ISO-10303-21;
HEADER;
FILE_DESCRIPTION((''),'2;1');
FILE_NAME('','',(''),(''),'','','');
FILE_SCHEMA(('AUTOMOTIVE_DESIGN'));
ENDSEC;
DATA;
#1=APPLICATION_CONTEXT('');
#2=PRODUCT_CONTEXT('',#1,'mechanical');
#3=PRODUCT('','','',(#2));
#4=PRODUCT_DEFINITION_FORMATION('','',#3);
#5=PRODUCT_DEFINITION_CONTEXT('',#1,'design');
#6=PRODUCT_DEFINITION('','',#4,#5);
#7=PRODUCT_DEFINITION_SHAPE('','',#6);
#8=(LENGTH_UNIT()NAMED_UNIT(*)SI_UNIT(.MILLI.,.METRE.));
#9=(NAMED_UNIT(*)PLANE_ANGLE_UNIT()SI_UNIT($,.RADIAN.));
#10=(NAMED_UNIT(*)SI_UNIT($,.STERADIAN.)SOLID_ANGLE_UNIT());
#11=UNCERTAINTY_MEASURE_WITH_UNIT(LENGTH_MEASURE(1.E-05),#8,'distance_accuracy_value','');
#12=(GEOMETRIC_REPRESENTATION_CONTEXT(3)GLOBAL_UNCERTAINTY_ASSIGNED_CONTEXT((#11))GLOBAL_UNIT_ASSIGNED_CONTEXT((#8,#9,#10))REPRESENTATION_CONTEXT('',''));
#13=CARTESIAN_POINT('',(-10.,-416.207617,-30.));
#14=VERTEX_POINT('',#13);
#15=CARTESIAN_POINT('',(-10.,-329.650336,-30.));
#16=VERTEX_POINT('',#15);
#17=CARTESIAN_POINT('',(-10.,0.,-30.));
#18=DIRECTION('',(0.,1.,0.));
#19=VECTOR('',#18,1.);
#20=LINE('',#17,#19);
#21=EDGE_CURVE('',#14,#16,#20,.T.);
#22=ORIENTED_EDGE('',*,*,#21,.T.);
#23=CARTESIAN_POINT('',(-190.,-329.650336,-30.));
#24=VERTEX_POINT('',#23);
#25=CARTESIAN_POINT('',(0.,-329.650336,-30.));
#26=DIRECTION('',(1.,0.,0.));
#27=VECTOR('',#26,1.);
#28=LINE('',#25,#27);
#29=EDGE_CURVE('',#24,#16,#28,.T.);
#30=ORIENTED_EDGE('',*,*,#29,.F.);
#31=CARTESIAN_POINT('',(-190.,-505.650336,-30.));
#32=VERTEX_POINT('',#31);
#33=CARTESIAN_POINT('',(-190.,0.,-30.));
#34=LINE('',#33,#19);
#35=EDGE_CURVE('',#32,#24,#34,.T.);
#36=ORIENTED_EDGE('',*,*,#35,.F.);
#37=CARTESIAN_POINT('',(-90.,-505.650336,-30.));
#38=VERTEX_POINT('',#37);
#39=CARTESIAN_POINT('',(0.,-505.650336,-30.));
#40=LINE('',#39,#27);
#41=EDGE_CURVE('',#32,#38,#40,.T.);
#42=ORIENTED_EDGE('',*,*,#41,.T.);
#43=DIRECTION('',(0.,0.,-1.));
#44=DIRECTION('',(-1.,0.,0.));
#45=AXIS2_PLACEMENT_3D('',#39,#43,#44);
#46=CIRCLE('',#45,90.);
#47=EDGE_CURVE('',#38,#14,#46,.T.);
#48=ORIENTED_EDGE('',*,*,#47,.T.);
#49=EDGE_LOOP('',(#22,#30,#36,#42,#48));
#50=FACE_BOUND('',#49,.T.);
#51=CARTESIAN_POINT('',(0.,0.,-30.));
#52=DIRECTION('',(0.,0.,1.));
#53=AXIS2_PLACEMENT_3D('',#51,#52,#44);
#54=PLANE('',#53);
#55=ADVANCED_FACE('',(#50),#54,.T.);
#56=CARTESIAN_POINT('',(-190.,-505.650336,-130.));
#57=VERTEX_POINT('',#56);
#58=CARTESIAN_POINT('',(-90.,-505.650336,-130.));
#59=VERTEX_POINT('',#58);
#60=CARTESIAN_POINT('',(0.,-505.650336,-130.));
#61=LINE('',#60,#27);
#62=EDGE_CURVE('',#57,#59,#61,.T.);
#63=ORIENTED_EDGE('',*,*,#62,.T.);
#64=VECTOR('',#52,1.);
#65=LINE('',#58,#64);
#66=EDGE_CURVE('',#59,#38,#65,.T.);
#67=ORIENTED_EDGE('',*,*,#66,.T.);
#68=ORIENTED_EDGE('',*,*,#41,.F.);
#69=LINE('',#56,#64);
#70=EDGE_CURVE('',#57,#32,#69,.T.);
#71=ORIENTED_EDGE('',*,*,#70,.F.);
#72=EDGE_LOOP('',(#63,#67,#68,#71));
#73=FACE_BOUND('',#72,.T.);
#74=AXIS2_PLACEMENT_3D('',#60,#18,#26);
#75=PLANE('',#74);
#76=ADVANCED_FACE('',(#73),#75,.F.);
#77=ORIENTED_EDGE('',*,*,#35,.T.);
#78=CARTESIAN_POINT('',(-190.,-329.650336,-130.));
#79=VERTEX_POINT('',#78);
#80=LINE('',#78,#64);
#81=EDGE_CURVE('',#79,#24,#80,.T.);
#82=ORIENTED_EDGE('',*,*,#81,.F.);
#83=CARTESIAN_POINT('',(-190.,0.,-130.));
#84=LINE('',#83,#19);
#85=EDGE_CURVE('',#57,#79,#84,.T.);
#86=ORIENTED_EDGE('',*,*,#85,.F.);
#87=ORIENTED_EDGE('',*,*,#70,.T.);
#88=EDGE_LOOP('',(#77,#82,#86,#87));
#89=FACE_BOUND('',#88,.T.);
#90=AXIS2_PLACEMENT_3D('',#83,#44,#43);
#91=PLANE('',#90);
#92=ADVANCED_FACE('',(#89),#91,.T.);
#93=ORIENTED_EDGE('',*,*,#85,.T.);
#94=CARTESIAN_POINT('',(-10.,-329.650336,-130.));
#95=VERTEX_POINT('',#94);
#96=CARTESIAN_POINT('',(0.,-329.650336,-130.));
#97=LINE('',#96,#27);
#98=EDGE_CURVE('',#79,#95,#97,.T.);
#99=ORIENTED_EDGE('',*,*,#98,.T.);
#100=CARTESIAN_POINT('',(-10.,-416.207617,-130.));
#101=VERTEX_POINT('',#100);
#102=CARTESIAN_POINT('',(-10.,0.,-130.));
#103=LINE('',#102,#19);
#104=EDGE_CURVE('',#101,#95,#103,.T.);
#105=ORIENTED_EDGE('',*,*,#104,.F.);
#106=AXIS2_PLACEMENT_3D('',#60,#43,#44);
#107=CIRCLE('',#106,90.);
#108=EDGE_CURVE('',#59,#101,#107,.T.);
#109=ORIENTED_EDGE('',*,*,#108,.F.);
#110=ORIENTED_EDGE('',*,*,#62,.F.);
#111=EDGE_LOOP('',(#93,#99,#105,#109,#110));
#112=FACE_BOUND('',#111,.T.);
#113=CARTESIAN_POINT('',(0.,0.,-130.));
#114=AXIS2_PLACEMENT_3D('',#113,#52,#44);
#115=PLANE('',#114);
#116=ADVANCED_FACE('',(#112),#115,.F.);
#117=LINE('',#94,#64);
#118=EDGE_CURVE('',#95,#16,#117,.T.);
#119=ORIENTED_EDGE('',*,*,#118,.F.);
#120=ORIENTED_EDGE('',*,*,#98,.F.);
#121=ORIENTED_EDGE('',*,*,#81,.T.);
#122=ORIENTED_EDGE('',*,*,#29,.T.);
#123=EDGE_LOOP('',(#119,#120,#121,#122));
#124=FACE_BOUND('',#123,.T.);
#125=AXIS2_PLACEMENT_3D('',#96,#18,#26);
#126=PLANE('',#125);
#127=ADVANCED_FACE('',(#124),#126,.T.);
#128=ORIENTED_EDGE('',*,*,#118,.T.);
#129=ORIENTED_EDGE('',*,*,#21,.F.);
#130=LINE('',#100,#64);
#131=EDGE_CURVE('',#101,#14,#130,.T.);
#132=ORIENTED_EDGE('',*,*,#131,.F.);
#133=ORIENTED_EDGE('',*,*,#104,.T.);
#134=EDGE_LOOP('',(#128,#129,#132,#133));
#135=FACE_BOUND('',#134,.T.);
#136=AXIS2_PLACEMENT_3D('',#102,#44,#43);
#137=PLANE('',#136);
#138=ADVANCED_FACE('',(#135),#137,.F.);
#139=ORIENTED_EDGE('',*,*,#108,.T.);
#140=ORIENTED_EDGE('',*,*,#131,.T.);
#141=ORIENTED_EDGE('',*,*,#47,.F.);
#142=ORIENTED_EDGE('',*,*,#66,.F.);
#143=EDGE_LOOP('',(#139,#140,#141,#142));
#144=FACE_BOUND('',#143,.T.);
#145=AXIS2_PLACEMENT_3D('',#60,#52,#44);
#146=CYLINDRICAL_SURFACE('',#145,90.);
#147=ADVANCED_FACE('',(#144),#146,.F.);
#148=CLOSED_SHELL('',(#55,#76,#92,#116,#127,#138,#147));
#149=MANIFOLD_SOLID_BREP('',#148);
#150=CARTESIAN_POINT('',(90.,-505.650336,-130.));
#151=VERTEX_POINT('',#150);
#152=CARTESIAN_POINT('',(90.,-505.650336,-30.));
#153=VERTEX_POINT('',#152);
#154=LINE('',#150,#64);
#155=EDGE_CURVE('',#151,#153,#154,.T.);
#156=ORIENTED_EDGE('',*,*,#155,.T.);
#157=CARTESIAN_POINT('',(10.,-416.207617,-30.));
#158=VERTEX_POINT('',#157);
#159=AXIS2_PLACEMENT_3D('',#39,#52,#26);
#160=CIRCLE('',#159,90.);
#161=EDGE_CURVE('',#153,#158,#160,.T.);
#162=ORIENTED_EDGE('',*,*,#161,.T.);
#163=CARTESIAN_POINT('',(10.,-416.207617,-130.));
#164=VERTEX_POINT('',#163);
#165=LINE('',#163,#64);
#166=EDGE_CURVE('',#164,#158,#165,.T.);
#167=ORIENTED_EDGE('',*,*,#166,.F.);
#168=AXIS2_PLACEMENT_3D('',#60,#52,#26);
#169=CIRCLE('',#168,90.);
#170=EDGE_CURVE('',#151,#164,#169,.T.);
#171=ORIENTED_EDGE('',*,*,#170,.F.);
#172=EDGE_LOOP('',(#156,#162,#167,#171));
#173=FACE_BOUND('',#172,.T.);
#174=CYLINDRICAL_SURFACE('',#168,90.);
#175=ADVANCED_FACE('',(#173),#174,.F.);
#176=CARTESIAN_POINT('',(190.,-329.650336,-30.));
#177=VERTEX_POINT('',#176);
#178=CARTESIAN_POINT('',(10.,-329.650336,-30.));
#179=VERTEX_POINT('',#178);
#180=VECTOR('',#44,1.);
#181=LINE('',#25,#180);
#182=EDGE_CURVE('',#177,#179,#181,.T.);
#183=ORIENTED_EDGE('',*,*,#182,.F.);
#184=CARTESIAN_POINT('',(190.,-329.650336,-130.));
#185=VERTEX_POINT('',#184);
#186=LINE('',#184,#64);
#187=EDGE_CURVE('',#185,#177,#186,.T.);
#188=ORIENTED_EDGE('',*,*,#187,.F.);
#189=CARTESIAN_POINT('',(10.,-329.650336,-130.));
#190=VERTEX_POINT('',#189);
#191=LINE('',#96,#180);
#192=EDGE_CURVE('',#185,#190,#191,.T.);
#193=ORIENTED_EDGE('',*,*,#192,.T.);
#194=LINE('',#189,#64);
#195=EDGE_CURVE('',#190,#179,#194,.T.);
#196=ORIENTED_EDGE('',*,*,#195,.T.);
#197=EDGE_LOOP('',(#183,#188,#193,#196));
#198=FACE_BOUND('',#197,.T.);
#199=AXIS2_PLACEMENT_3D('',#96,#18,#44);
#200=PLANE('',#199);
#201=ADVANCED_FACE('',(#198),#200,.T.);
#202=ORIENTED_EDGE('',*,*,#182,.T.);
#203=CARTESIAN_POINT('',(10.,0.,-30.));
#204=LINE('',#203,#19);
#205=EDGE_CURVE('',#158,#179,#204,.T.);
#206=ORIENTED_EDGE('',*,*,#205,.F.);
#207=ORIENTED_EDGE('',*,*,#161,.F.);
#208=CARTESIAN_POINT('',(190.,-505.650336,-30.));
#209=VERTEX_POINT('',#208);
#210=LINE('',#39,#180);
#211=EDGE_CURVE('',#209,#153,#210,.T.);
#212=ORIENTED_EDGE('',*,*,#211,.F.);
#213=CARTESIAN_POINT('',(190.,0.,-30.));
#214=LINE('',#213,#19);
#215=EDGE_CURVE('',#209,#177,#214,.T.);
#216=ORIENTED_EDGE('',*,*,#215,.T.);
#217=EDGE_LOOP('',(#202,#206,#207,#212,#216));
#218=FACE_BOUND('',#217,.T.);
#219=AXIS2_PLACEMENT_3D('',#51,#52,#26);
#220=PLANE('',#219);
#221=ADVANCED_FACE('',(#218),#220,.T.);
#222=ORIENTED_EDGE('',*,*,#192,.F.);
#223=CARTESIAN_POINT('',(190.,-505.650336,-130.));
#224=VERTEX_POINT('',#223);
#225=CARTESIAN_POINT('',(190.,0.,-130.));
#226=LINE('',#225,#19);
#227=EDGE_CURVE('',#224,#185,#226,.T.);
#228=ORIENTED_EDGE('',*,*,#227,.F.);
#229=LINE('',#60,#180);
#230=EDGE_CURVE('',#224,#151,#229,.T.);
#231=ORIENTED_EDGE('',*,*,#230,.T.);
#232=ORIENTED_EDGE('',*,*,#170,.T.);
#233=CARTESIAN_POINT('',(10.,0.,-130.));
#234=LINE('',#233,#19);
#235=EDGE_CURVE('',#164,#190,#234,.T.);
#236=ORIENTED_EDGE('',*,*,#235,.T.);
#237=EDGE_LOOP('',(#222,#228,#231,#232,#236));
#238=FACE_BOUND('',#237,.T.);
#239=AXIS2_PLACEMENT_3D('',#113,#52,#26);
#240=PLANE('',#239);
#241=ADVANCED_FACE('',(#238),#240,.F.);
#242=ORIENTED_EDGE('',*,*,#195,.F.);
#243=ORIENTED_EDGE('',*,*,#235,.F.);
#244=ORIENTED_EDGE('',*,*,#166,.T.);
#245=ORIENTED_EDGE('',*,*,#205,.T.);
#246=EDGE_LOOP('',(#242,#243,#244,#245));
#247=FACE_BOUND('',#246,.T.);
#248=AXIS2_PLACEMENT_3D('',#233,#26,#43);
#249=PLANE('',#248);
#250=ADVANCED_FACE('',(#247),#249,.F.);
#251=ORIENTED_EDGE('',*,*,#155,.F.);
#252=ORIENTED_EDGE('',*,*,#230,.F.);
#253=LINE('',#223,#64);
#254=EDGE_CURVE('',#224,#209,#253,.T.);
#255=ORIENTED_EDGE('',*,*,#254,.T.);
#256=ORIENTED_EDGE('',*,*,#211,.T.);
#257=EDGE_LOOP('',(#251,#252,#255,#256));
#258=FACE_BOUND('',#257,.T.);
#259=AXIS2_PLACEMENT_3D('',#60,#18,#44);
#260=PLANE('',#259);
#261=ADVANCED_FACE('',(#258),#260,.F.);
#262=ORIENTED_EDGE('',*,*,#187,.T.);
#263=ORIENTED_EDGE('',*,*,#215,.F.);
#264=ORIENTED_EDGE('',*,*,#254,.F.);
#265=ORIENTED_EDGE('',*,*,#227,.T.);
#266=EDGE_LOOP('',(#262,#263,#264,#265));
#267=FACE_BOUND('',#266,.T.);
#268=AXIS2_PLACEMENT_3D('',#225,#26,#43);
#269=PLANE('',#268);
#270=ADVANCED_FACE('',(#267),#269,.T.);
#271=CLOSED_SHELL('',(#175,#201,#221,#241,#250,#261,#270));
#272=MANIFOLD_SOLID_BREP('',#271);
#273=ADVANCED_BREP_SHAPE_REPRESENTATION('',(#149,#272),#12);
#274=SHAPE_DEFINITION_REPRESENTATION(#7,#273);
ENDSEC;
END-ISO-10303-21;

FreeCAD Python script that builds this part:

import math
import FreeCAD as App
import Part
import Sketcher
from FreeCAD import Vector

doc = App.newDocument("Part")
body = doc.addObject("PartDesign::Body", "Body")

# Sketch on XY plane
sketch1 = doc.addObject("Sketcher::SketchObject", "Sketch")
body.addObject(sketch1)
sketch1.AttachmentSupport = (doc.XY_Plane, [""])
sketch1.MapMode = "FlatFace"
sketch1.AttachmentOffset = App.Placement(Vector(0, 0, -30), App.Rotation())
sketch1.addGeometry([
    Part.LineSegment(Vector(90, -506, 0), Vector(190, -506, 0)),  # 0
    Part.LineSegment(Vector(190, -506, 0), Vector(190, -330, 0)),  # 1
    Part.LineSegment(Vector(190, -330, 0), Vector(10, -330, 0)),  # 2
    Part.LineSegment(Vector(10, -330, 0), Vector(10, -416, 0)),  # 3
    Part.ArcOfCircle(Part.Circle(Vector(0, -506, 0), Vector(0, 0, 1), 90), math.radians(0), math.radians(84)),  # 4
], False)
sketch1.addConstraint([
    Sketcher.Constraint("Coincident", 0, 2, 1, 1),
    Sketcher.Constraint("Coincident", 1, 2, 2, 1),
    Sketcher.Constraint("Coincident", 2, 2, 3, 1),
    Sketcher.Constraint("Coincident", 3, 2, 4, 2),
    Sketcher.Constraint("Coincident", 4, 1, 0, 1),
    Sketcher.Constraint("Horizontal", 0),
    Sketcher.Constraint("Vertical", 1),
    Sketcher.Constraint("Horizontal", 2),
    Sketcher.Constraint("Vertical", 3),
    Sketcher.Constraint("PointOnObject", 4, 3, -2),
    Sketcher.Constraint("Horizontal", 4, 3, 0, 2),
    Sketcher.Constraint("Radius", 4, 90.0),
    Sketcher.Constraint("DistanceX", 0, 1, 0, 2, 100.0),
    Sketcher.Constraint("DistanceX", 2, 2, 2, 1, 180.0),
    Sketcher.Constraint("DistanceY", 1, 1, 1, 2, 176.0),
    Sketcher.Constraint("DistanceY", 4, 3, -1, 1, 505.650336),
])
pad1 = doc.addObject("PartDesign::Pad", "Pad")
body.addObject(pad1)
pad1.Profile = sketch1
pad1.Length = 100
pad1.Reversed = True
body2 = doc.addObject("PartDesign::Body", "Body001")
doc.recompute()

mirroring = doc.addObject("Part::Mirroring", "Mirroring")
mirroring.Source = body
mirroring.Base = Vector(0, 0, 0)
mirroring.Normal = Vector(1, 0, 0)
body2.BaseFeature = mirroring
doc.recompute()
mirroring.Visibility = False

doc.recompute()
